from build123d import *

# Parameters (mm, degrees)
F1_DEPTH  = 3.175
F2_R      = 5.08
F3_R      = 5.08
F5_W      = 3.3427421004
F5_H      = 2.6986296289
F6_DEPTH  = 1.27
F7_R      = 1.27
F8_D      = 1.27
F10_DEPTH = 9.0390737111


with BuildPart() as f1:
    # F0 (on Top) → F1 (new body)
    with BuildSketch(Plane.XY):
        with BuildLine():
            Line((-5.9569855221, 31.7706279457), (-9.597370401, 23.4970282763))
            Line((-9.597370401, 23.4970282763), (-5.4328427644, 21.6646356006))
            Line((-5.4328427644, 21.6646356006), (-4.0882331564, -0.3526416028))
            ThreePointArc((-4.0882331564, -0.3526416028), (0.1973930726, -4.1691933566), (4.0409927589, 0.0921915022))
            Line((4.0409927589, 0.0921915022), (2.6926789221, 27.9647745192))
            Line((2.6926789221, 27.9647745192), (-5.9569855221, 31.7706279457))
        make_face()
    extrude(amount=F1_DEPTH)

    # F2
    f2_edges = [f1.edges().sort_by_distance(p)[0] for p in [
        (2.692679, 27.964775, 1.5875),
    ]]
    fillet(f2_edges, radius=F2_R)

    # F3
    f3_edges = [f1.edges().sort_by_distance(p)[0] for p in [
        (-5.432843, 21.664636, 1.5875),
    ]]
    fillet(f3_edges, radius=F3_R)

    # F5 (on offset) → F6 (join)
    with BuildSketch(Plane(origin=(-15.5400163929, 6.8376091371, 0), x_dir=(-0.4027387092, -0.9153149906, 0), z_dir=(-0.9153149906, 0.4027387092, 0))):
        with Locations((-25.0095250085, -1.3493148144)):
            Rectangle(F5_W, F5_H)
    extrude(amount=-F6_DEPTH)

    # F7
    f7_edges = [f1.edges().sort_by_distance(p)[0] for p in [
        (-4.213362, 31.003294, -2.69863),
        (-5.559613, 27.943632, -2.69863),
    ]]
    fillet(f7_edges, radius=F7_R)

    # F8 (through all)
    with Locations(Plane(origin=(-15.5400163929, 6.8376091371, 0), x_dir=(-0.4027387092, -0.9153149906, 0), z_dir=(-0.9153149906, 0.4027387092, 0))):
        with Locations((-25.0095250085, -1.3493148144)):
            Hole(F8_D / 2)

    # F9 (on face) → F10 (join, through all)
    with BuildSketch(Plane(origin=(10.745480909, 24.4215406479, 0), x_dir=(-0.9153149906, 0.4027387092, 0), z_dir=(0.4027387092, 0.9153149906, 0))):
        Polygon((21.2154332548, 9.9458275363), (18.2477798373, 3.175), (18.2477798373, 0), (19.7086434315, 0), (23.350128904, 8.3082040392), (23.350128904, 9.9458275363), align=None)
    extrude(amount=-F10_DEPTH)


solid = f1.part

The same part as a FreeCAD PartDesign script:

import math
import FreeCAD as App
import Part
import Sketcher
Q = App.Units.Quantity


def edges_at(feature, points):
    """Names of the edges that pass closest to the given points."""
    edges = feature.Shape.Edges
    near = lambda p: min(range(len(edges)), key=lambda i: edges[i].distToShape(Part.Vertex(*p))[0])
    return sorted({f"Edge{near(p) + 1}" for p in points})

doc = App.newDocument("Part")
params = doc.addObject("Spreadsheet::Sheet", "Params")
for row, (alias, value) in enumerate([
    ("pad1_length", "0.125 in"),
    ("fillet_radius", "0.2 in"),
    ("fillet2_radius", "0.2 in"),
    ("pad2_length", "0.05 in"),
    ("fillet3_radius", "0.05 in"),
    ("sketch3_diameter", "0.05 in"),
    ("hole_diameter", "0.05 in"),
    ("sketch4_height", "0.125 in"),
    ("pad3_length", "9.039074 mm"),
], start=1):
    params.set(f"A{row}", alias)
    params.set(f"B{row}", "=" + value)
    params.setAlias(f"B{row}", alias)

body = doc.addObject("PartDesign::Body", "Body")

sketch1 = body.newObject("Sketcher::SketchObject", "Sketch")
sketch1.AttachmentSupport = (doc.getObject("XY_Plane"), [""])
sketch1.MapMode = "FlatFace"
sketch1.addGeometry(Part.LineSegment(App.Vector(-6, 31.8, 0), App.Vector(-9.6, 23.5, 0)), False)
sketch1.addGeometry(Part.LineSegment(App.Vector(-9.6, 23.5, 0), App.Vector(-5.4, 21.7, 0)), False)
sketch1.addGeometry(Part.LineSegment(App.Vector(-5.4, 21.7, 0), App.Vector(-4.1, -0.4, 0)), False)
sketch1.addGeometry(Part.ArcOfCircle(Part.Circle(App.Vector(0, -0.1, 0), App.Vector(0, 0, 1), 4.1), math.radians(-177), math.radians(3)), False)
sketch1.addGeometry(Part.LineSegment(App.Vector(4, 0.1, 0), App.Vector(2.7, 28, 0)), False)
sketch1.addGeometry(Part.LineSegment(App.Vector(2.7, 28, 0), App.Vector(-6, 31.8, 0)), False)
sketch1.addConstraint(Sketcher.Constraint("Coincident", 0, 2, 1, 1))
sketch1.addConstraint(Sketcher.Constraint("Coincident", 1, 2, 2, 1))
sketch1.addConstraint(Sketcher.Constraint("Tangent", 2, 2, 3, 1))
sketch1.addConstraint(Sketcher.Constraint("Tangent", 3, 2, 4, 1))
sketch1.addConstraint(Sketcher.Constraint("Coincident", 4, 2, 5, 1))
sketch1.addConstraint(Sketcher.Constraint("Coincident", 5, 2, 0, 1))
sketch1.addConstraint(Sketcher.Constraint("Perpendicular", 0, 1))
sketch1.addConstraint(Sketcher.Constraint("Parallel", 1, 5))
sketch1.addConstraint(Sketcher.Constraint("Radius", 3, 4.070775))
sketch1.addConstraint(Sketcher.Constraint("DistanceY", 3, 3, -1, 1, 0.104499))
sketch1.addConstraint(Sketcher.Constraint("DistanceY", 0, 2, 5, 2, 8.2736))
sketch1.addConstraint(Sketcher.Constraint("Distance", 1, 4.54983))
sketch1.addConstraint(Sketcher.Constraint("DistanceX", 0, 2, -1, 1, 9.59737))
sketch1.addConstraint(Sketcher.Constraint("DistanceY", -1, 1, 0, 2, 23.497028))
sketch1.addConstraint(Sketcher.Constraint("DistanceY", 2, 2, -1, 1, 0.352642))
sketch1.addConstraint(Sketcher.Constraint("DistanceY", -1, 1, 3, 2, 0.092192))
sketch1.addConstraint(Sketcher.Constraint("DistanceX", -1, 1, 4, 2, 2.692679))
pad1 = body.newObject("PartDesign::Pad", "Pad")
pad1.Profile = sketch1
pad1.setExpression("Length", "Params.pad1_length")
doc.recompute()

fillet = body.newObject("PartDesign::Fillet", "Fillet")
fillet.Base = (pad1, edges_at(pad1, [(2.693, 27.965, 1.587)]))
fillet.setExpression("Radius", "Params.fillet_radius")
doc.recompute()

fillet2 = body.newObject("PartDesign::Fillet", "Fillet001")
fillet2.Base = (fillet, edges_at(fillet, [(-5.433, 21.665, 1.587)]))
fillet2.setExpression("Radius", "Params.fillet2_radius")

sketch2 = body.newObject("Sketcher::SketchObject", "Sketch001")
sketch2.Placement = App.Placement(App.Vector(-15.540016, 6.837609, 0), App.Rotation(App.Vector(-0.402738709, -0.915314991, 0), App.Vector(0, 0, 1), App.Vector(-0.915314991, 0.402738709, 0), "ZXY"))
sketch2.addGeometry(Part.LineSegment(App.Vector(-26.7, 0, 0), App.Vector(-26.7, -2.7, 0)), False)
sketch2.addGeometry(Part.LineSegment(App.Vector(-26.7, -2.7, 0), App.Vector(-23.3, -2.7, 0)), False)
sketch2.addGeometry(Part.LineSegment(App.Vector(-23.3, -2.7, 0), App.Vector(-23.3, 0, 0)), False)
sketch2.addGeometry(Part.LineSegment(App.Vector(-23.3, 0, 0), App.Vector(-26.7, 0, 0)), False)
sketch2.addConstraint(Sketcher.Constraint("Coincident", 0, 2, 1, 1))
sketch2.addConstraint(Sketcher.Constraint("Coincident", 1, 2, 2, 1))
sketch2.addConstraint(Sketcher.Constraint("Coincident", 2, 2, 3, 1))
sketch2.addConstraint(Sketcher.Constraint("Coincident", 3, 2, 0, 1))
sketch2.addConstraint(Sketcher.Constraint("Vertical", 0))
sketch2.addConstraint(Sketcher.Constraint("Horizontal", 1))
sketch2.addConstraint(Sketcher.Constraint("Vertical", 2))
sketch2.addConstraint(Sketcher.Constraint("Horizontal", 3))
sketch2.addConstraint(Sketcher.Constraint("PointOnObject", 2, 2, -1))
sketch2.addConstraint(Sketcher.Constraint("DistanceY", 0, 2, 0, 1, 2.69863))
sketch2.addConstraint(Sketcher.Constraint("DistanceX", 1, 1, 1, 2, 3.342742))
sketch2.addConstraint(Sketcher.Constraint("DistanceX", 0, 2, -1, 1, 26.680896))
pad2 = body.newObject("PartDesign::Pad", "Pad001")
pad2.Profile = sketch2
pad2.setExpression("Length", "Params.pad2_length")
pad2.Reversed = True
doc.recompute()

fillet3 = body.newObject("PartDesign::Fillet", "Fillet002")
fillet3.Base = (pad2, edges_at(pad2, [(-4.213, 31.003, -2.699), (-5.56, 27.944, -2.699)]))
fillet3.setExpression("Radius", "Params.fillet3_radius")

sketch3 = body.newObject("Sketcher::SketchObject", "Sketch002")
sketch3.Placement = App.Placement(App.Vector(-15.540016, 6.837609, 0), App.Rotation(App.Vector(-0.402738709, -0.915314991, 0), App.Vector(0, 0, 1), App.Vector(-0.915314991, 0.402738709, 0), "ZXY"))
sketch3.addGeometry(Part.Circle(App.Vector(-25, -1.3, 0), App.Vector(0, 0, 1), 0.6), False)
sketch3.addConstraint(Sketcher.Constraint("Diameter", 0, Q("0.05 in")))
sketch3.addConstraint(Sketcher.Constraint("DistanceX", 0, 3, -1, 1, 25.009525))
sketch3.addConstraint(Sketcher.Constraint("DistanceY", 0, 3, -1, 1, 1.349315))
sketch3.setExpression("Constraints[0]", "Params.sketch3_diameter")
doc.recompute()
hole = body.newObject("PartDesign::Hole", "Hole")
hole.Profile = sketch3
hole.ThreadType = "None"
hole.setExpression("Diameter", "Params.hole_diameter")
hole.DepthType = "ThroughAll"

sketch4 = body.newObject("Sketcher::SketchObject", "Sketch003")
sketch4.Placement = App.Placement(App.Vector(10.745481, 24.421541, 0), App.Rotation(App.Vector(-0.915314991, 0.402738709, 0), App.Vector(0, 0, 1), App.Vector(0.402738709, 0.915314991, 0), "ZXY"))
sketch4.addGeometry(Part.LineSegment(App.Vector(21.2, 9.9, 0), App.Vector(18.2, 3.2, 0)), False)
sketch4.addGeometry(Part.LineSegment(App.Vector(18.2, 3.2, 0), App.Vector(18.2, 0, 0)), False)
sketch4.addGeometry(Part.LineSegment(App.Vector(18.2, 0, 0), App.Vector(19.7, 0, 0)), False)
sketch4.addGeometry(Part.LineSegment(App.Vector(19.7, 0, 0), App.Vector(23.4, 8.3, 0)), False)
sketch4.addGeometry(Part.LineSegment(App.Vector(23.4, 8.3, 0), App.Vector(23.4, 9.9, 0)), False)
sketch4.addGeometry(Part.LineSegment(App.Vector(23.4, 9.9, 0), App.Vector(21.2, 9.9, 0)), False)
sketch4.addConstraint(Sketcher.Constraint("Coincident", 0, 2, 1, 1))
sketch4.addConstraint(Sketcher.Constraint("Coincident", 1, 2, 2, 1))
sketch4.addConstraint(Sketcher.Constraint("Coincident", 2, 2, 3, 1))
sketch4.addConstraint(Sketcher.Constraint("Coincident", 3, 2, 4, 1))
sketch4.addConstraint(Sketcher.Constraint("Coincident", 4, 2, 5, 1))
sketch4.addConstraint(Sketcher.Constraint("Coincident", 5, 2, 0, 1))
sketch4.addConstraint(Sketcher.Constraint("Vertical", 1))
sketch4.addConstraint(Sketcher.Constraint("Horizontal", 2))
sketch4.addConstraint(Sketcher.Constraint("Vertical", 4))
sketch4.addConstraint(Sketcher.Constraint("Horizontal", 5))
sketch4.addConstraint(Sketcher.Constraint("PointOnObject", 1, 2, -1))
sketch4.addConstraint(Sketcher.Constraint("Parallel", 0, 3))
sketch4.addConstraint(Sketcher.Constraint("DistanceY", 1, 2, 1, 1, Q("0.125 in")))
sketch4.addConstraint(Sketcher.Constraint("Distance", 3, 9.0712))
sketch4.addConstraint(Sketcher.Constraint("DistanceX", 2, 1, 2, 2, 1.460864))
sketch4.addConstraint(Sketcher.Constraint("DistanceX", 5, 2, 5, 1, 2.134696))
sketch4.addConstraint(Sketcher.Constraint("DistanceY", 4, 1, 4, 2, 1.637623))
sketch4.addConstraint(Sketcher.Constraint("DistanceX", -1, 1, 0, 2, 18.24778))
sketch4.setExpression("Constraints[12]", "Params.sketch4_height")
pad3 = body.newObject("PartDesign::Pad", "Pad002")
pad3.Profile = sketch4
pad3.setExpression("Length", "Params.pad3_length")
pad3.Reversed = True

doc.recompute()
